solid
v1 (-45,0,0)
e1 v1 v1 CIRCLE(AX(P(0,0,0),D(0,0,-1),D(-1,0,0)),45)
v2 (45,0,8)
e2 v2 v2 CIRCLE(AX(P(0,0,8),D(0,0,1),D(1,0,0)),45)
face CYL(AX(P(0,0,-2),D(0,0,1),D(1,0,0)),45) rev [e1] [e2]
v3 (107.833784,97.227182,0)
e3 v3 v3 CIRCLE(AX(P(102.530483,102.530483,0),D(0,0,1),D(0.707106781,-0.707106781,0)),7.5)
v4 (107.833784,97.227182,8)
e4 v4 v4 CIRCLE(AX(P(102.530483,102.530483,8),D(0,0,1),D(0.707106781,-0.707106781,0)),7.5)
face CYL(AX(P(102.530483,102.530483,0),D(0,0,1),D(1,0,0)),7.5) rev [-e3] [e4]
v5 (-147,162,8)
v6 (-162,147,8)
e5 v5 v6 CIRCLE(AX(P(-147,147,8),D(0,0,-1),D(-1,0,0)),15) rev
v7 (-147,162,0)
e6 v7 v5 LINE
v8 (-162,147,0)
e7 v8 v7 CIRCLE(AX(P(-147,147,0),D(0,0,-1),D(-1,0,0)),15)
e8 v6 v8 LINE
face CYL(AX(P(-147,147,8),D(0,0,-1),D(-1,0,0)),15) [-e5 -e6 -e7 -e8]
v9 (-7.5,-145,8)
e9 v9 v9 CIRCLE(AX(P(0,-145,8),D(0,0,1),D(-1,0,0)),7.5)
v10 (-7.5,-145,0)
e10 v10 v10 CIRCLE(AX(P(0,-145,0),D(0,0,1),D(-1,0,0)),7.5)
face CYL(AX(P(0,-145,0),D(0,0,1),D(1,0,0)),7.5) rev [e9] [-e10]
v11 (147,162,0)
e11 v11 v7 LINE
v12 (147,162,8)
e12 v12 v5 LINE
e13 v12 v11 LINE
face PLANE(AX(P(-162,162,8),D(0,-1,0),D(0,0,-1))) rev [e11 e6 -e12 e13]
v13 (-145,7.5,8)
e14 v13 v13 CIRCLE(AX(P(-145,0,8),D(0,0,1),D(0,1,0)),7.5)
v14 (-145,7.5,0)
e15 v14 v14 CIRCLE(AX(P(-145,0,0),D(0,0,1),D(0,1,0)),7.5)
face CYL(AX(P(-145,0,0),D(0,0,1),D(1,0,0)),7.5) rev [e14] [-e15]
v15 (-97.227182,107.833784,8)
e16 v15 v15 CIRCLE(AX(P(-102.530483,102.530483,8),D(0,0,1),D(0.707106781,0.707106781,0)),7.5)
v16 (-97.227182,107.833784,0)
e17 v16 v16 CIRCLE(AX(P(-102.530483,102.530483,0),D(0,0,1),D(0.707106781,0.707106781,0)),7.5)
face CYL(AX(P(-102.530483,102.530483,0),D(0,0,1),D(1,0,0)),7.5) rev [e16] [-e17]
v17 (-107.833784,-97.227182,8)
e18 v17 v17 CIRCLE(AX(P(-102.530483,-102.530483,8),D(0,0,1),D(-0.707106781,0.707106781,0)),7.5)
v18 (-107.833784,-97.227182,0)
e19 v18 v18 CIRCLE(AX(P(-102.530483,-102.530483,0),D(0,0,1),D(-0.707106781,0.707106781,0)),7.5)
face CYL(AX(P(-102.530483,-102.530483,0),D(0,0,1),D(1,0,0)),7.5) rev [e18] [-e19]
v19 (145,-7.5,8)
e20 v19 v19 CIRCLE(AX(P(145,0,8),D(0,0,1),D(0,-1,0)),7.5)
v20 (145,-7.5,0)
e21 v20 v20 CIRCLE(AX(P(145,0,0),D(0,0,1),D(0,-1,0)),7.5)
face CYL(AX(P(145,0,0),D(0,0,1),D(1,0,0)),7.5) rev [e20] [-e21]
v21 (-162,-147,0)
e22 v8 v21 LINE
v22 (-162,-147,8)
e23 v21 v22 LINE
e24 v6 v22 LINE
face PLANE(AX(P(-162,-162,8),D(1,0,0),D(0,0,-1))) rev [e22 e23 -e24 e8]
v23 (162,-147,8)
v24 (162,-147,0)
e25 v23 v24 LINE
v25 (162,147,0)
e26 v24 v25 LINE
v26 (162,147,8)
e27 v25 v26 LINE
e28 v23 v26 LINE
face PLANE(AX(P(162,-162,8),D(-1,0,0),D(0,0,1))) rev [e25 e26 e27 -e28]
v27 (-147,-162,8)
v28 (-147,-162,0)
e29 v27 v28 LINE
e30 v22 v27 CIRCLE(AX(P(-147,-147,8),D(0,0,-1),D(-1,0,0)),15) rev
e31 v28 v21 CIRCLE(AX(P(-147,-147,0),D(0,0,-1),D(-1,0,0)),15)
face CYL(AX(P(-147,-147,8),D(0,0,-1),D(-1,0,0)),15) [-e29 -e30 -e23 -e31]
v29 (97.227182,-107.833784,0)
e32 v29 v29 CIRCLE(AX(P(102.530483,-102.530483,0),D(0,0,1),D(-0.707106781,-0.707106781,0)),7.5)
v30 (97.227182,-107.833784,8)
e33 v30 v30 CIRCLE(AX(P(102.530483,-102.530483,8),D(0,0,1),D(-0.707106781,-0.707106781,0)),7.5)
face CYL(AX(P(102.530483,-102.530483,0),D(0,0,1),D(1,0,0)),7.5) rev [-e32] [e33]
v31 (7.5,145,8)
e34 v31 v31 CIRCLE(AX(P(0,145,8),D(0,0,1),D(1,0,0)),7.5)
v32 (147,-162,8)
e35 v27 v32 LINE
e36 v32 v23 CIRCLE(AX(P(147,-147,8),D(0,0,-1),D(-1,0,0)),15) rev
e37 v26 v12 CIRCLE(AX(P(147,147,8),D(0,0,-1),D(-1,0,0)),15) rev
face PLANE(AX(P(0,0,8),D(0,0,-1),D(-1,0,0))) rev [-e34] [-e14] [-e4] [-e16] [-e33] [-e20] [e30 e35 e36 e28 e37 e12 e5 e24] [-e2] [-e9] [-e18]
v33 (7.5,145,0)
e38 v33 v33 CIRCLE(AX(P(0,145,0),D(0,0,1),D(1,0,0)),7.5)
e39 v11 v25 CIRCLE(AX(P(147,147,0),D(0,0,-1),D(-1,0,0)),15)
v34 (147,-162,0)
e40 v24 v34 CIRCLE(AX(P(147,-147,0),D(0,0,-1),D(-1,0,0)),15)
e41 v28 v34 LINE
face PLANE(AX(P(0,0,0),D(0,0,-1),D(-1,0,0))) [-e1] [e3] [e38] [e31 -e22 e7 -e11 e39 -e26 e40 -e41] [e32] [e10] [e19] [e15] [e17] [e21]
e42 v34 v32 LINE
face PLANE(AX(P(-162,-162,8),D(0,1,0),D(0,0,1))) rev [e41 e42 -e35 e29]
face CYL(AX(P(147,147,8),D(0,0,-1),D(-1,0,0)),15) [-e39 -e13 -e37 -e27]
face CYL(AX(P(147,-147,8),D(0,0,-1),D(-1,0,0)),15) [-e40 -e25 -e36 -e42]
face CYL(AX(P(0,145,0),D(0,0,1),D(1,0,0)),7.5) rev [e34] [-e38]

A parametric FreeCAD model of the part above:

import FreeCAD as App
import Part
import Sketcher


def edges_at(feature, points):
    """Names of the edges that pass closest to the given points."""
    edges = feature.Shape.Edges
    near = lambda p: min(range(len(edges)), key=lambda i: edges[i].distToShape(Part.Vertex(*p))[0])
    return sorted({f"Edge{near(p) + 1}" for p in points})


def add_polygon(sketch, points):
    """Adds a closed chain of lines whose ends are joined by coincident constraints."""
    first, n = sketch.GeometryCount, len(points)
    for a, b in zip(points, points[1:] + points[:1]):
        sketch.addGeometry(Part.LineSegment(App.Vector(*a, 0), App.Vector(*b, 0)), False)
    for i in range(n):
        sketch.addConstraint(Sketcher.Constraint("Coincident", first + i, 2, first + (i + 1) % n, 1))

doc = App.newDocument("Part")
body = doc.addObject("PartDesign::Body", "Body")

# Sketch on XY plane
sketch1 = body.newObject("Sketcher::SketchObject", "Sketch")
sketch1.AttachmentSupport = (doc.getObject("XY_Plane"), [""])
sketch1.MapMode = "FlatFace"
add_polygon(sketch1, [(-162, 162), (-162, -162), (162, -162), (162, 162)])  # lines 0-3
sketch1.addConstraint(Sketcher.Constraint("Vertical", 0))
sketch1.addConstraint(Sketcher.Constraint("Horizontal", 1))
sketch1.addConstraint(Sketcher.Constraint("Vertical", 2))
sketch1.addConstraint(Sketcher.Constraint("Horizontal", 3))
sketch1.addConstraint(Sketcher.Constraint("Symmetric", 0, 2, 2, 2, -1, 1))
sketch1.addConstraint(Sketcher.Constraint("Equal", 3, 0))
sketch1.addConstraint(Sketcher.Constraint("DistanceX", 1, 1, 1, 2, 324.0))
pad1 = body.newObject("PartDesign::Pad", "Pad")
pad1.Profile = sketch1
pad1.Length = 8

# Sketch on XY plane
sketch2 = body.newObject("Sketcher::SketchObject", "Sketch001")
sketch2.AttachmentSupport = (doc.getObject("XY_Plane"), [""])
sketch2.MapMode = "FlatFace"
sketch2.AttachmentOffset = App.Placement(App.Vector(0, 0, 8), App.Rotation())
sketch2.addGeometry(Part.Circle(App.Vector(0, 145, 0), App.Vector(0, 0, 1), 8), False)
sketch2.addConstraint(Sketcher.Constraint("PointOnObject", 0, 3, -2))
sketch2.addConstraint(Sketcher.Constraint("Diameter", 0, 15.0))
sketch2.addConstraint(Sketcher.Constraint("DistanceY", -1, 1, 0, 3, 145.0))
pocket1 = body.newObject("PartDesign::Pocket", "Pocket")
pocket1.Profile = sketch2
pocket1.Length = 8

# Sketch on XY plane
sketch3 = body.newObject("Sketcher::SketchObject", "Sketch002")
sketch3.AttachmentSupport = (doc.getObject("XY_Plane"), [""])
sketch3.MapMode = "FlatFace"
sketch3.AttachmentOffset = App.Placement(App.Vector(0, 0, 8), App.Rotation())
sketch3.addGeometry(Part.Circle(App.Vector(0, 0, 0), App.Vector(0, 0, 1), 45), False)
sketch3.addConstraint(Sketcher.Constraint("Coincident", 0, 3, -1, 1))
sketch3.addConstraint(Sketcher.Constraint("Diameter", 0, 90.0))
pocket2 = body.newObject("PartDesign::Pocket", "Pocket001")
pocket2.Profile = sketch3
pocket2.Length = 10
doc.recompute()

polarpattern = body.newObject("PartDesign::PolarPattern", "PolarPattern")
polarpattern.Originals = [pocket1]
polarpattern.Axis = (doc.getObject("Z_Axis"), [""])
polarpattern.Angle = 360
polarpattern.Occurrences = 8
body.Tip = polarpattern
doc.recompute()

fillet = body.newObject("PartDesign::Fillet", "Fillet")
fillet.Base = (polarpattern, edges_at(polarpattern, [
    (162, -162, 4),
    (-162, -162, 4),
    (-162, 162, 4),
    (162, 162, 4),
]))
fillet.Radius = 15

doc.recompute()
